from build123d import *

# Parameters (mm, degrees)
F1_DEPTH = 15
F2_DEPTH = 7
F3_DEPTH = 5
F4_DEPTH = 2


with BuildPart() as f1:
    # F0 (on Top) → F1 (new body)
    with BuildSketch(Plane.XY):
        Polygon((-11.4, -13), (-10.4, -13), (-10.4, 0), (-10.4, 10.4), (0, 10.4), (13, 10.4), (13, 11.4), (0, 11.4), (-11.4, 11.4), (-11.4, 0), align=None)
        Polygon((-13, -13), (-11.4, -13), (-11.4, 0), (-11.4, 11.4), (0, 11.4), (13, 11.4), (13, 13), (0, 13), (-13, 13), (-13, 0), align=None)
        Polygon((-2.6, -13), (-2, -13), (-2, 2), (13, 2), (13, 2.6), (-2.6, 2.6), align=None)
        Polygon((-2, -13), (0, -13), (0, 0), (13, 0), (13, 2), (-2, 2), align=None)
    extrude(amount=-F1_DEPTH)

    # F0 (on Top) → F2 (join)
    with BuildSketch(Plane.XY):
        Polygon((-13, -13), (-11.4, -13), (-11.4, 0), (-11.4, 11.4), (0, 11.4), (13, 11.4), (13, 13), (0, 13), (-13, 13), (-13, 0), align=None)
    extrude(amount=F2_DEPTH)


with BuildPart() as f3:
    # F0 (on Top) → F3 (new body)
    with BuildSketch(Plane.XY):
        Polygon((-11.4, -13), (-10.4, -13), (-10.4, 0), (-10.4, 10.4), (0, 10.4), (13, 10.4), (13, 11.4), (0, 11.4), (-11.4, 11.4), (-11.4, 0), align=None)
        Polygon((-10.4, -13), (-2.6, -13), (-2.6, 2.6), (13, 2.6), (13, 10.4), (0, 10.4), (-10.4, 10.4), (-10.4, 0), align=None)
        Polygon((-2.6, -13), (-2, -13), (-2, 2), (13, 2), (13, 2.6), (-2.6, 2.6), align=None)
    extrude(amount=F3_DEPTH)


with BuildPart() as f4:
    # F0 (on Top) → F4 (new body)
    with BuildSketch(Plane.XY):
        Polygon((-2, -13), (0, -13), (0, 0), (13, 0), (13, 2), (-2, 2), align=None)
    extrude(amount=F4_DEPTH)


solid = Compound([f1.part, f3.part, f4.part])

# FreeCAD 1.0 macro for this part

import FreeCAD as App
import Part
import Sketcher

V = App.Vector
Q = App.Units.Quantity

doc = App.newDocument("Part")
body = doc.addObject("PartDesign::Body", "Body")
body.AllowCompound = True

# Sketch on XY plane
sketch1 = body.newObject("Sketcher::SketchObject", "Sketch")
sketch1.AttachmentSupport = (doc.getObject("XY_Plane"), [""])
sketch1.MapMode = "FlatFace"
sketch1.addGeometry(Part.LineSegment(V(-10.4, -13, 0), V(-10.4, 10.4, 0)), False)
sketch1.addGeometry(Part.LineSegment(V(-10.4, 10.4, 0), V(13, 10.4, 0)), False)
sketch1.addGeometry(Part.LineSegment(V(13, 10.4, 0), V(13, 13, 0)), False)
sketch1.addGeometry(Part.LineSegment(V(13, 13, 0), V(-13, 13, 0)), False)
sketch1.addGeometry(Part.LineSegment(V(-13, 13, 0), V(-13, -13, 0)), False)
sketch1.addGeometry(Part.LineSegment(V(-13, -13, 0), V(-10.4, -13, 0)), False)
sketch1.addGeometry(Part.LineSegment(V(-2.6, -13, 0), V(0, -13, 0)), False)
sketch1.addGeometry(Part.LineSegment(V(0, -13, 0), V(0, 0, 0)), False)
sketch1.addGeometry(Part.LineSegment(V(0, 0, 0), V(13, 0, 0)), False)
sketch1.addGeometry(Part.LineSegment(V(13, 0, 0), V(13, 2.6, 0)), False)
sketch1.addGeometry(Part.LineSegment(V(13, 2.6, 0), V(-2.6, 2.6, 0)), False)
sketch1.addGeometry(Part.LineSegment(V(-2.6, 2.6, 0), V(-2.6, -13, 0)), False)
sketch1.addConstraint(Sketcher.Constraint("Coincident", 0, 2, 1, 1))
sketch1.addConstraint(Sketcher.Constraint("Coincident", 1, 2, 2, 1))
sketch1.addConstraint(Sketcher.Constraint("Coincident", 2, 2, 3, 1))
sketch1.addConstraint(Sketcher.Constraint("Coincident", 3, 2, 4, 1))
sketch1.addConstraint(Sketcher.Constraint("Coincident", 4, 2, 5, 1))
sketch1.addConstraint(Sketcher.Constraint("Coincident", 5, 2, 0, 1))
sketch1.addConstraint(Sketcher.Constraint("Coincident", 6, 2, 7, 1))
sketch1.addConstraint(Sketcher.Constraint("Coincident", 7, 2, 8, 1))
sketch1.addConstraint(Sketcher.Constraint("Coincident", 8, 2, 9, 1))
sketch1.addConstraint(Sketcher.Constraint("Coincident", 9, 2, 10, 1))
sketch1.addConstraint(Sketcher.Constraint("Coincident", 10, 2, 11, 1))
sketch1.addConstraint(Sketcher.Constraint("Coincident", 11, 2, 6, 1))
sketch1.addConstraint(Sketcher.Constraint("Vertical", 0))
sketch1.addConstraint(Sketcher.Constraint("Horizontal", 1))
sketch1.addConstraint(Sketcher.Constraint("Vertical", 2))
sketch1.addConstraint(Sketcher.Constraint("Horizontal", 3))
sketch1.addConstraint(Sketcher.Constraint("Vertical", 4))
sketch1.addConstraint(Sketcher.Constraint("Horizontal", 5))
sketch1.addConstraint(Sketcher.Constraint("Horizontal", 6))
sketch1.addConstraint(Sketcher.Constraint("Vertical", 7))
sketch1.addConstraint(Sketcher.Constraint("Horizontal", 8))
sketch1.addConstraint(Sketcher.Constraint("Vertical", 9))
sketch1.addConstraint(Sketcher.Constraint("Horizontal", 10))
sketch1.addConstraint(Sketcher.Constraint("Vertical", 11))
sketch1.addConstraint(Sketcher.Constraint("Coincident", 7, 2, -1, 1))
sketch1.addConstraint(Sketcher.Constraint("Symmetric", 2, 2, 4, 2, -1, 1))
sketch1.addConstraint(Sketcher.Constraint("Horizontal", 5, 2, 6, 2))
sketch1.addConstraint(Sketcher.Constraint("Vertical", 2, 2, 8, 2))
sketch1.addConstraint(Sketcher.Constraint("Equal", 5, 6))
sketch1.addConstraint(Sketcher.Constraint("Equal", 1, 0))
sketch1.addConstraint(Sketcher.Constraint("Equal", 6, 2))
sketch1.addConstraint(Sketcher.Constraint("Equal", 2, 9))
sketch1.addConstraint(Sketcher.Constraint("DistanceX", 3, 2, 3, 1, Q("26 mm")))
sketch1.addConstraint(Sketcher.Constraint("DistanceX", 1, 1, 1, 2, Q("23.4 mm")))
pad1 = body.newObject("PartDesign::Pad", "Pad")
pad1.Profile = sketch1
pad1.Length = 15
pad1.Reversed = True

# Sketch on XY plane
sketch2 = body.newObject("Sketcher::SketchObject", "Sketch001")
sketch2.AttachmentSupport = (doc.getObject("XY_Plane"), [""])
sketch2.MapMode = "FlatFace"
sketch2.addGeometry(Part.LineSegment(V(-13, -13, 0), V(-11.4, -13, 0)), False)
sketch2.addGeometry(Part.LineSegment(V(-11.4, -13, 0), V(-11.4, 11.4, 0)), False)
sketch2.addGeometry(Part.LineSegment(V(-11.4, 11.4, 0), V(13, 11.4, 0)), False)
sketch2.addGeometry(Part.LineSegment(V(13, 11.4, 0), V(13, 13, 0)), False)
sketch2.addGeometry(Part.LineSegment(V(13, 13, 0), V(-13, 13, 0)), False)
sketch2.addGeometry(Part.LineSegment(V(-13, 13, 0), V(-13, -13, 0)), False)
sketch2.addConstraint(Sketcher.Constraint("Coincident", 0, 2, 1, 1))
sketch2.addConstraint(Sketcher.Constraint("Coincident", 1, 2, 2, 1))
sketch2.addConstraint(Sketcher.Constraint("Coincident", 2, 2, 3, 1))
sketch2.addConstraint(Sketcher.Constraint("Coincident", 3, 2, 4, 1))
sketch2.addConstraint(Sketcher.Constraint("Coincident", 4, 2, 5, 1))
sketch2.addConstraint(Sketcher.Constraint("Coincident", 5, 2, 0, 1))
sketch2.addConstraint(Sketcher.Constraint("Horizontal", 0))
sketch2.addConstraint(Sketcher.Constraint("Vertical", 1))
sketch2.addConstraint(Sketcher.Constraint("Horizontal", 2))
sketch2.addConstraint(Sketcher.Constraint("Vertical", 3))
sketch2.addConstraint(Sketcher.Constraint("Horizontal", 4))
sketch2.addConstraint(Sketcher.Constraint("Vertical", 5))
sketch2.addConstraint(Sketcher.Constraint("Symmetric", 3, 2, 5, 2, -1, 1))
sketch2.addConstraint(Sketcher.Constraint("Equal", 2, 1))
sketch2.addConstraint(Sketcher.Constraint("Equal", 0, 3))
sketch2.addConstraint(Sketcher.Constraint("DistanceX", 4, 2, 4, 1, Q("26 mm")))
sketch2.addConstraint(Sketcher.Constraint("DistanceX", 0, 1, 0, 2, Q("1.6 mm")))
pad2 = body.newObject("PartDesign::Pad", "Pad001")
pad2.Profile = sketch2
pad2.Length = 7
body2 = doc.addObject("PartDesign::Body", "Body001")

# Sketch on XY plane
sketch3 = body2.newObject("Sketcher::SketchObject", "Sketch002")
sketch3.AttachmentSupport = (doc.getObject("XY_Plane001"), [""])
sketch3.MapMode = "FlatFace"
sketch3.addGeometry(Part.LineSegment(V(-11, -13, 0), V(-2, -13, 0)), False)
sketch3.addGeometry(Part.LineSegment(V(-2, -13, 0), V(-2, 2, 0)), False)
sketch3.addGeometry(Part.LineSegment(V(-2, 2, 0), V(13, 2, 0)), False)
sketch3.addGeometry(Part.LineSegment(V(13, 2, 0), V(13, 11, 0)), False)
sketch3.addGeometry(Part.LineSegment(V(13, 11, 0), V(-11, 11, 0)), False)
sketch3.addGeometry(Part.LineSegment(V(-11, 11, 0), V(-11, -13, 0)), False)
sketch3.addConstraint(Sketcher.Constraint("Coincident", 0, 2, 1, 1))
sketch3.addConstraint(Sketcher.Constraint("Coincident", 1, 2, 2, 1))
sketch3.addConstraint(Sketcher.Constraint("Coincident", 2, 2, 3, 1))
sketch3.addConstraint(Sketcher.Constraint("Coincident", 3, 2, 4, 1))
sketch3.addConstraint(Sketcher.Constraint("Coincident", 4, 2, 5, 1))
sketch3.addConstraint(Sketcher.Constraint("Coincident", 5, 2, 0, 1))
sketch3.addConstraint(Sketcher.Constraint("Horizontal", 0))
sketch3.addConstraint(Sketcher.Constraint("Vertical", 1))
sketch3.addConstraint(Sketcher.Constraint("Horizontal", 2))
sketch3.addConstraint(Sketcher.Constraint("Vertical", 3))
sketch3.addConstraint(Sketcher.Constraint("Horizontal", 4))
sketch3.addConstraint(Sketcher.Constraint("Vertical", 5))
sketch3.addConstraint(Sketcher.Constraint("Equal", 2, 1))
sketch3.addConstraint(Sketcher.Constraint("Equal", 0, 3))
sketch3.addConstraint(Sketcher.Constraint("DistanceX", 2, 1, 2, 2, Q("15 mm")))
sketch3.addConstraint(Sketcher.Constraint("DistanceX", 0, 1, 0, 2, Q("9.4 mm")))
sketch3.addConstraint(Sketcher.Constraint("DistanceX", 0, 2, -1, 1, Q("2 mm")))
sketch3.addConstraint(Sketcher.Constraint("DistanceY", 0, 2, -1, 1, Q("13 mm")))
pad3 = body2.newObject("PartDesign::Pad", "Pad002")
pad3.Profile = sketch3
pad3.Length = 5
body3 = doc.addObject("PartDesign::Body", "Body002")

# Sketch on XY plane
sketch4 = body3.newObject("Sketcher::SketchObject", "Sketch003")
sketch4.AttachmentSupport = (doc.getObject("XY_Plane002"), [""])
sketch4.MapMode = "FlatFace"
sketch4.addGeometry(Part.LineSegment(V(-2, -13, 0), V(0, -13, 0)), False)
sketch4.addGeometry(Part.LineSegment(V(0, -13, 0), V(0, 0, 0)), False)
sketch4.addGeometry(Part.LineSegment(V(0, 0, 0), V(13, 0, 0)), False)
sketch4.addGeometry(Part.LineSegment(V(13, 0, 0), V(13, 2, 0)), False)
sketch4.addGeometry(Part.LineSegment(V(13, 2, 0), V(-2, 2, 0)), False)
sketch4.addGeometry(Part.LineSegment(V(-2, 2, 0), V(-2, -13, 0)), False)
sketch4.addConstraint(Sketcher.Constraint("Coincident", 0, 2, 1, 1))
sketch4.addConstraint(Sketcher.Constraint("Coincident", 1, 2, 2, 1))
sketch4.addConstraint(Sketcher.Constraint("Coincident", 2, 2, 3, 1))
sketch4.addConstraint(Sketcher.Constraint("Coincident", 3, 2, 4, 1))
sketch4.addConstraint(Sketcher.Constraint("Coincident", 4, 2, 5, 1))
sketch4.addConstraint(Sketcher.Constraint("Coincident", 5, 2, 0, 1))
sketch4.addConstraint(Sketcher.Constraint("Horizontal", 0))
sketch4.addConstraint(Sketcher.Constraint("Vertical", 1))
sketch4.addConstraint(Sketcher.Constraint("Horizontal", 2))
sketch4.addConstraint(Sketcher.Constraint("Vertical", 3))
sketch4.addConstraint(Sketcher.Constraint("Horizontal", 4))
sketch4.addConstraint(Sketcher.Constraint("Vertical", 5))
sketch4.addConstraint(Sketcher.Constraint("Coincident", 1, 2, -1, 1))
sketch4.addConstraint(Sketcher.Constraint("Equal", 2, 1))
sketch4.addConstraint(Sketcher.Constraint("Equal", 0, 3))
sketch4.addConstraint(Sketcher.Constraint("DistanceX", 0, 1, 0, 2, Q("2 mm")))
sketch4.addConstraint(Sketcher.Constraint("DistanceX", 2, 1, 2, 2, Q("13 mm")))
pad4 = body3.newObject("PartDesign::Pad", "Pad003")
pad4.Profile = sketch4
pad4.Length = 2

doc.recompute()
